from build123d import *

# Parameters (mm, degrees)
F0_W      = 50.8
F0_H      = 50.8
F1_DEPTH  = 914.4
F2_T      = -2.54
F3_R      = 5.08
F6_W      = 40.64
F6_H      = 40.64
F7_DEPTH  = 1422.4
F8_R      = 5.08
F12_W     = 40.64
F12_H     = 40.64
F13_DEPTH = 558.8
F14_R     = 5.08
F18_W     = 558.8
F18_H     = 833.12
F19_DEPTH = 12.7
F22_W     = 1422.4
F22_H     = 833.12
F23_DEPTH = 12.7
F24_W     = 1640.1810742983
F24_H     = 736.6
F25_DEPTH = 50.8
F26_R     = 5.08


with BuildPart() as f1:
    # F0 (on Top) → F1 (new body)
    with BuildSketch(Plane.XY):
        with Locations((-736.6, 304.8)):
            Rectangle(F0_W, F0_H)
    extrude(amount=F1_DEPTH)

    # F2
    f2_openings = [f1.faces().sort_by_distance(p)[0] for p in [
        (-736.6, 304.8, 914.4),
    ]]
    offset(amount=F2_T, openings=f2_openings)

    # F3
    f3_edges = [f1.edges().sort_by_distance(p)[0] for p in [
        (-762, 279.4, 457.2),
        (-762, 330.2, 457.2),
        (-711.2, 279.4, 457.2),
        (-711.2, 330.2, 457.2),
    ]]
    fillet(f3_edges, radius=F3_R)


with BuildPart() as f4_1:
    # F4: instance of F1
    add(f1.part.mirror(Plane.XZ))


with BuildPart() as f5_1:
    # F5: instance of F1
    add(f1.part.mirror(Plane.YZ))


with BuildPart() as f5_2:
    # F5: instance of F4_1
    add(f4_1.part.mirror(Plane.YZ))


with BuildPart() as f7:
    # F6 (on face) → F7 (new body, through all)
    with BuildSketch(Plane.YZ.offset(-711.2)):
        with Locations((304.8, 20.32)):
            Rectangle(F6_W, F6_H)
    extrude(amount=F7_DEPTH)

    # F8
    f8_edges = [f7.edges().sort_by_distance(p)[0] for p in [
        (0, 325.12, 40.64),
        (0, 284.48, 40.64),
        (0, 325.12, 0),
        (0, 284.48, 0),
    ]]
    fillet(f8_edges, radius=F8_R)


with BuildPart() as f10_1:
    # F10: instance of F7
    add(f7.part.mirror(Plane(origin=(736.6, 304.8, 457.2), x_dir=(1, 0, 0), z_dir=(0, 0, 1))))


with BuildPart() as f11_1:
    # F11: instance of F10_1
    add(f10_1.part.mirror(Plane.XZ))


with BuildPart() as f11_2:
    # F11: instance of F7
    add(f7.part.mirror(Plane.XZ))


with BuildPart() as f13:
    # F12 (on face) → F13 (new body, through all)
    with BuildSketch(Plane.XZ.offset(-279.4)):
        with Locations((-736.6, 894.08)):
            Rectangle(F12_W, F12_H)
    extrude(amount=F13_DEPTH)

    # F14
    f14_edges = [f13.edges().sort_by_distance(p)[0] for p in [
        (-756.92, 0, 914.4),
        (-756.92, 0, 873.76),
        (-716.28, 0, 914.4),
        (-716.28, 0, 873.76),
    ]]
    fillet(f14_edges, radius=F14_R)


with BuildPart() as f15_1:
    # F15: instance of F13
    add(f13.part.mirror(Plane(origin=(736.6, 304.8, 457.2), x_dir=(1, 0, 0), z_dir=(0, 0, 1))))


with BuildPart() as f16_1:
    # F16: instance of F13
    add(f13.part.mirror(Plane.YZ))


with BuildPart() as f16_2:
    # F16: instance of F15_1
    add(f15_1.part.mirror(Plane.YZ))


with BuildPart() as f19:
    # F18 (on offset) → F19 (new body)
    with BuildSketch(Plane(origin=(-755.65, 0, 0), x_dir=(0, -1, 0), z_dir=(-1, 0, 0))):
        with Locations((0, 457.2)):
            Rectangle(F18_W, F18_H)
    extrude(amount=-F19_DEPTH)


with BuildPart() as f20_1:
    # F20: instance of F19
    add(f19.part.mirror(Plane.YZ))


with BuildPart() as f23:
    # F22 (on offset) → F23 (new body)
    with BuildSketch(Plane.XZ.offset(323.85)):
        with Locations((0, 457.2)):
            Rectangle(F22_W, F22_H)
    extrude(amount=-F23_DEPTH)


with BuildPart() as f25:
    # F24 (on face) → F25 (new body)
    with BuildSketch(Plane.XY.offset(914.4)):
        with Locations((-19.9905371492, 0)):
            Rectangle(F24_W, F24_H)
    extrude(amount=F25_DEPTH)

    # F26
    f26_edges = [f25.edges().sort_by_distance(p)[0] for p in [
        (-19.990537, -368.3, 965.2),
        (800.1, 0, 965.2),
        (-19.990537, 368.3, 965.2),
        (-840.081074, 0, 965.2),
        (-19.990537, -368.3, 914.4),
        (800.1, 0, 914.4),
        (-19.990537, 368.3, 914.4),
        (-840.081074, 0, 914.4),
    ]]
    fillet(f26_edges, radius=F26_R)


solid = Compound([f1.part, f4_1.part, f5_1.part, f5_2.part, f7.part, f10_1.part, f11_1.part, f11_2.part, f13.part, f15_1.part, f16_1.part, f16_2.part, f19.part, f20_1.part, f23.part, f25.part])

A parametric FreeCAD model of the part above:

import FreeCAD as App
import Part
import Sketcher
from FreeCAD import Vector
Q = App.Units.Quantity


def edges_at(feature, points):
    """Names of the edges that pass closest to the given points."""
    edges = feature.Shape.Edges
    near = lambda p: min(range(len(edges)), key=lambda i: edges[i].distToShape(Part.Vertex(*p))[0])
    return sorted({f"Edge{near(p) + 1}" for p in points})


def faces_at(feature, points):
    """Names of the faces that lie closest to the given points."""
    faces = feature.Shape.Faces
    near = lambda p: min(range(len(faces)), key=lambda i: faces[i].distToShape(Part.Vertex(*p))[0])
    return sorted({f"Face{near(p) + 1}" for p in points})

doc = App.newDocument("Part")
body = doc.addObject("PartDesign::Body", "Body")

sketch1 = body.newObject("Sketcher::SketchObject", "Sketch")
sketch1.AttachmentSupport = (doc.getObject("XY_Plane"), [""])
sketch1.MapMode = "FlatFace"
sketch1.addGeometry([
    Part.LineSegment(Vector(-762, 330, 0), Vector(-762, 279, 0)),
    Part.LineSegment(Vector(-762, 279, 0), Vector(-711, 279, 0)),
    Part.LineSegment(Vector(-711, 279, 0), Vector(-711, 330, 0)),
    Part.LineSegment(Vector(-711, 330, 0), Vector(-762, 330, 0)),
], False)
sketch1.addConstraint([
    Sketcher.Constraint("Coincident", 0, 2, 1, 1),
    Sketcher.Constraint("Coincident", 1, 2, 2, 1),
    Sketcher.Constraint("Coincident", 2, 2, 3, 1),
    Sketcher.Constraint("Coincident", 3, 2, 0, 1),
    Sketcher.Constraint("Vertical", 0),
    Sketcher.Constraint("Horizontal", 1),
    Sketcher.Constraint("Vertical", 2),
    Sketcher.Constraint("Horizontal", 3),
    Sketcher.Constraint("Equal", 3, 0),
    Sketcher.Constraint("DistanceX", 1, 1, 1, 2, Q("2 in")),
    Sketcher.Constraint("DistanceX", 0, 2, -1, 1, Q("30 in")),
    Sketcher.Constraint("DistanceY", -1, 1, 0, 2, Q("11 in")),
])
pad1 = body.newObject("PartDesign::Pad", "Pad")
pad1.Profile = sketch1
pad1.Length = Q("36 in")
doc.recompute()

thickness = body.newObject("PartDesign::Thickness", "Thickness")
thickness.Base = (pad1, faces_at(pad1, [(-736.6, 304.8, 914.4)]))
thickness.Value = Q("0.1 in")
thickness.Reversed = True
thickness.Join = "Arc"
doc.recompute()

fillet = body.newObject("PartDesign::Fillet", "Fillet")
fillet.Base = (thickness, edges_at(thickness, [
    (-762, 279.4, 457.2),
    (-762, 330.2, 457.2),
    (-711.2, 279.4, 457.2),
    (-711.2, 330.2, 457.2),
]))
fillet.Radius = Q("0.2 in")
body2 = doc.addObject("PartDesign::Body", "Body001")
doc.recompute()

mirroring = doc.addObject("Part::Mirroring", "Mirroring")
mirroring.Source = body
mirroring.Base = Vector(0, 0, 0)
mirroring.Normal = Vector(0, -1, 0)
body2.BaseFeature = mirroring
doc.recompute()
body3 = doc.addObject("PartDesign::Body", "Body002")
doc.recompute()

mirroring2 = doc.addObject("Part::Mirroring", "Mirroring001")
mirroring2.Source = body
mirroring2.Base = Vector(0, 0, 0)
mirroring2.Normal = Vector(1, 0, 0)
body3.BaseFeature = mirroring2
doc.recompute()
body4 = doc.addObject("PartDesign::Body", "Body003")
doc.recompute()

mirroring3 = doc.addObject("Part::Mirroring", "Mirroring002")
mirroring3.Source = body2
mirroring3.Base = Vector(0, 0, 0)
mirroring3.Normal = Vector(1, 0, 0)
body4.BaseFeature = mirroring3
doc.recompute()
body5 = doc.addObject("PartDesign::Body", "Body004")

sketch2 = body5.newObject("Sketcher::SketchObject", "Sketch001")
sketch2.AttachmentSupport = (doc.getObject("YZ_Plane004"), [""])
sketch2.MapMode = "FlatFace"
sketch2.AttachmentOffset = App.Placement(Vector(0, 0, -28 * 25.4), App.Rotation())
sketch2.addGeometry([
    Part.LineSegment(Vector(284, 41, 0), Vector(284, 0, 0)),
    Part.LineSegment(Vector(284, 0, 0), Vector(325, 0, 0)),
    Part.LineSegment(Vector(325, 0, 0), Vector(325, 41, 0)),
    Part.LineSegment(Vector(325, 41, 0), Vector(284, 41, 0)),
], False)
sketch2.addConstraint([
    Sketcher.Constraint("Coincident", 0, 2, 1, 1),
    Sketcher.Constraint("Coincident", 1, 2, 2, 1),
    Sketcher.Constraint("Coincident", 2, 2, 3, 1),
    Sketcher.Constraint("Coincident", 3, 2, 0, 1),
    Sketcher.Constraint("Vertical", 0),
    Sketcher.Constraint("Horizontal", 1),
    Sketcher.Constraint("Vertical", 2),
    Sketcher.Constraint("Horizontal", 3),
    Sketcher.Constraint("PointOnObject", 0, 2, -1),
    Sketcher.Constraint("Equal", 3, 0),
    Sketcher.Constraint("DistanceX", 1, 1, 1, 2, Q("1.6 in")),
    Sketcher.Constraint("DistanceX", -1, 1, 0, 2, Q("11.2 in")),
])
pad2 = body5.newObject("PartDesign::Pad", "Pad001")
pad2.Profile = sketch2
pad2.Length = Q("56 in")
doc.recompute()

fillet2 = body5.newObject("PartDesign::Fillet", "Fillet001")
fillet2.Base = (pad2, edges_at(pad2, [
    (0, 325.12, 40.64),
    (0, 284.48, 40.64),
    (0, 325.12, 0),
    (0, 284.48, 0),
]))
fillet2.Radius = Q("0.2 in")
body6 = doc.addObject("PartDesign::Body", "Body005")
doc.recompute()

mirroring4 = doc.addObject("Part::Mirroring", "Mirroring003")
mirroring4.Source = body5
mirroring4.Base = Vector(736.6, 304.8, 457.2)
mirroring4.Normal = Vector(0, 0, 1)
body6.BaseFeature = mirroring4
doc.recompute()
body7 = doc.addObject("PartDesign::Body", "Body006")
doc.recompute()

mirroring5 = doc.addObject("Part::Mirroring", "Mirroring004")
mirroring5.Source = body6
mirroring5.Base = Vector(0, 0, 0)
mirroring5.Normal = Vector(0, -1, 0)
body7.BaseFeature = mirroring5
doc.recompute()
body8 = doc.addObject("PartDesign::Body", "Body007")
doc.recompute()

mirroring6 = doc.addObject("Part::Mirroring", "Mirroring005")
mirroring6.Source = body5
mirroring6.Base = Vector(0, 0, 0)
mirroring6.Normal = Vector(0, -1, 0)
body8.BaseFeature = mirroring6
doc.recompute()
body9 = doc.addObject("PartDesign::Body", "Body008")

sketch3 = body9.newObject("Sketcher::SketchObject", "Sketch002")
sketch3.AttachmentSupport = (doc.getObject("XZ_Plane008"), [""])
sketch3.MapMode = "FlatFace"
sketch3.AttachmentOffset = App.Placement(Vector(0, 0, -11 * 25.4), App.Rotation())
sketch3.addGeometry([
    Part.LineSegment(Vector(-757, 914, 0), Vector(-757, 874, 0)),
    Part.LineSegment(Vector(-757, 874, 0), Vector(-716, 874, 0)),
    Part.LineSegment(Vector(-716, 874, 0), Vector(-716, 914, 0)),
    Part.LineSegment(Vector(-716, 914, 0), Vector(-757, 914, 0)),
], False)
sketch3.addConstraint([
    Sketcher.Constraint("Coincident", 0, 2, 1, 1),
    Sketcher.Constraint("Coincident", 1, 2, 2, 1),
    Sketcher.Constraint("Coincident", 2, 2, 3, 1),
    Sketcher.Constraint("Coincident", 3, 2, 0, 1),
    Sketcher.Constraint("Vertical", 0),
    Sketcher.Constraint("Horizontal", 1),
    Sketcher.Constraint("Vertical", 2),
    Sketcher.Constraint("Horizontal", 3),
    Sketcher.Constraint("Equal", 3, 0),
    Sketcher.Constraint("DistanceX", 1, 1, 1, 2, Q("1.6 in")),
    Sketcher.Constraint("DistanceY", -1, 1, 2, 2, Q("36 in")),
    Sketcher.Constraint("DistanceX", 0, 2, -1, 1, Q("29.8 in")),
])
pad3 = body9.newObject("PartDesign::Pad", "Pad002")
pad3.Profile = sketch3
pad3.Length = Q("22 in")
doc.recompute()

fillet3 = body9.newObject("PartDesign::Fillet", "Fillet002")
fillet3.Base = (pad3, edges_at(pad3, [
    (-756.92, 0, 914.4),
    (-756.92, 0, 873.76),
    (-716.28, 0, 914.4),
    (-716.28, 0, 873.76),
]))
fillet3.Radius = Q("0.2 in")
body10 = doc.addObject("PartDesign::Body", "Body009")
doc.recompute()

mirroring7 = doc.addObject("Part::Mirroring", "Mirroring006")
mirroring7.Source = body9
mirroring7.Base = Vector(736.6, 304.8, 457.2)
mirroring7.Normal = Vector(0, 0, 1)
body10.BaseFeature = mirroring7
doc.recompute()
body11 = doc.addObject("PartDesign::Body", "Body010")
doc.recompute()

mirroring8 = doc.addObject("Part::Mirroring", "Mirroring007")
mirroring8.Source = body9
mirroring8.Base = Vector(0, 0, 0)
mirroring8.Normal = Vector(1, 0, 0)
body11.BaseFeature = mirroring8
doc.recompute()
body12 = doc.addObject("PartDesign::Body", "Body011")
doc.recompute()

mirroring9 = doc.addObject("Part::Mirroring", "Mirroring008")
mirroring9.Source = body10
mirroring9.Base = Vector(0, 0, 0)
mirroring9.Normal = Vector(1, 0, 0)
body12.BaseFeature = mirroring9
doc.recompute()
body13 = doc.addObject("PartDesign::Body", "Body012")

sketch4 = body13.newObject("Sketcher::SketchObject", "Sketch003")
sketch4.AttachmentSupport = (doc.getObject("YZ_Plane012"), [""])
sketch4.MapMode = "FlatFace"
sketch4.AttachmentOffset = App.Placement(Vector(0, 0, -29.75 * 25.4), App.Rotation())
sketch4.addGeometry([
    Part.LineSegment(Vector(279, 874, 0), Vector(279, 41, 0)),
    Part.LineSegment(Vector(279, 41, 0), Vector(-279, 41, 0)),
    Part.LineSegment(Vector(-279, 41, 0), Vector(-279, 874, 0)),
    Part.LineSegment(Vector(-279, 874, 0), Vector(279, 874, 0)),
], False)
sketch4.addConstraint([
    Sketcher.Constraint("Coincident", 0, 2, 1, 1),
    Sketcher.Constraint("Coincident", 1, 2, 2, 1),
    Sketcher.Constraint("Coincident", 2, 2, 3, 1),
    Sketcher.Constraint("Coincident", 3, 2, 0, 1),
    Sketcher.Constraint("Vertical", 0),
    Sketcher.Constraint("Horizontal", 1),
    Sketcher.Constraint("Vertical", 2),
    Sketcher.Constraint("Horizontal", 3),
    Sketcher.Constraint("DistanceX", 1, 2, 1, 1, Q("22 in")),
    Sketcher.Constraint("DistanceY", 0, 2, 0, 1, Q("32.8 in")),
    Sketcher.Constraint("DistanceX", -1, 1, 0, 2, Q("11 in")),
    Sketcher.Constraint("DistanceY", -1, 1, 0, 2, Q("1.6 in")),
])
pad4 = body13.newObject("PartDesign::Pad", "Pad003")
pad4.Profile = sketch4
pad4.Length = Q("0.5 in")
body14 = doc.addObject("PartDesign::Body", "Body013")
doc.recompute()

mirroring10 = doc.addObject("Part::Mirroring", "Mirroring009")
mirroring10.Source = body13
mirroring10.Base = Vector(0, 0, 0)
mirroring10.Normal = Vector(1, 0, 0)
body14.BaseFeature = mirroring10
doc.recompute()
body15 = doc.addObject("PartDesign::Body", "Body014")

sketch5 = body15.newObject("Sketcher::SketchObject", "Sketch004")
sketch5.AttachmentSupport = (doc.getObject("XZ_Plane014"), [""])
sketch5.MapMode = "FlatFace"
sketch5.AttachmentOffset = App.Placement(Vector(0, 0, 12.75 * 25.4), App.Rotation())
sketch5.addGeometry([
    Part.LineSegment(Vector(-711, 874, 0), Vector(-711, 41, 0)),
    Part.LineSegment(Vector(-711, 41, 0), Vector(711, 41, 0)),
    Part.LineSegment(Vector(711, 41, 0), Vector(711, 874, 0)),
    Part.LineSegment(Vector(711, 874, 0), Vector(-711, 874, 0)),
], False)
sketch5.addConstraint([
    Sketcher.Constraint("Coincident", 0, 2, 1, 1),
    Sketcher.Constraint("Coincident", 1, 2, 2, 1),
    Sketcher.Constraint("Coincident", 2, 2, 3, 1),
    Sketcher.Constraint("Coincident", 3, 2, 0, 1),
    Sketcher.Constraint("Vertical", 0),
    Sketcher.Constraint("Horizontal", 1),
    Sketcher.Constraint("Vertical", 2),
    Sketcher.Constraint("Horizontal", 3),
    Sketcher.Constraint("DistanceX", 1, 1, 1, 2, Q("56 in")),
    Sketcher.Constraint("DistanceY", 0, 2, 0, 1, Q("32.8 in")),
    Sketcher.Constraint("DistanceX", 0, 2, -1, 1, Q("28 in")),
    Sketcher.Constraint("DistanceY", -1, 1, 0, 2, Q("1.6 in")),
])
pad5 = body15.newObject("PartDesign::Pad", "Pad004")
pad5.Profile = sketch5
pad5.Length = Q("0.5 in")
pad5.Reversed = True
body16 = doc.addObject("PartDesign::Body", "Body015")

sketch6 = body16.newObject("Sketcher::SketchObject", "Sketch005")
sketch6.AttachmentSupport = (doc.getObject("XY_Plane015"), [""])
sketch6.MapMode = "FlatFace"
sketch6.AttachmentOffset = App.Placement(Vector(0, 0, 36 * 25.4), App.Rotation())
sketch6.addGeometry([
    Part.LineSegment(Vector(-840, 368, 0), Vector(-840, -368, 0)),
    Part.LineSegment(Vector(-840, -368, 0), Vector(800, -368, 0)),
    Part.LineSegment(Vector(800, -368, 0), Vector(800, 368, 0)),
    Part.LineSegment(Vector(800, 368, 0), Vector(-840, 368, 0)),
], False)
sketch6.addConstraint([
    Sketcher.Constraint("Coincident", 0, 2, 1, 1),
    Sketcher.Constraint("Coincident", 1, 2, 2, 1),
    Sketcher.Constraint("Coincident", 2, 2, 3, 1),
    Sketcher.Constraint("Coincident", 3, 2, 0, 1),
    Sketcher.Constraint("Vertical", 0),
    Sketcher.Constraint("Horizontal", 1),
    Sketcher.Constraint("Vertical", 2),
    Sketcher.Constraint("Horizontal", 3),
    Sketcher.Constraint("DistanceY", 0, 2, 0, 1, Q("29 in")),
    Sketcher.Constraint("DistanceY", 0, 2, -1, 1, Q("14.5 in")),
    Sketcher.Constraint("DistanceX", -1, 1, 1, 2, Q("31.5 in")),
    Sketcher.Constraint("DistanceX", 1, 1, 1, 2, 1640.181074),
])
pad6 = body16.newObject("PartDesign::Pad", "Pad005")
pad6.Profile = sketch6
pad6.Length = Q("2 in")
doc.recompute()

fillet4 = body16.newObject("PartDesign::Fillet", "Fillet003")
fillet4.Base = (pad6, edges_at(pad6, [
    (-19.991, -368.3, 965.2),
    (800.1, 0, 965.2),
    (-19.991, 368.3, 965.2),
    (-840.081, 0, 965.2),
    (-19.991, -368.3, 914.4),
    (800.1, 0, 914.4),
    (-19.991, 368.3, 914.4),
    (-840.081, 0, 914.4),
]))
fillet4.Radius = Q("0.2 in")
mirroring.Visibility = False
mirroring2.Visibility = False
mirroring3.Visibility = False
mirroring4.Visibility = False
mirroring5.Visibility = False
mirroring6.Visibility = False
mirroring7.Visibility = False
mirroring8.Visibility = False
mirroring9.Visibility = False
mirroring10.Visibility = False

doc.recompute()
